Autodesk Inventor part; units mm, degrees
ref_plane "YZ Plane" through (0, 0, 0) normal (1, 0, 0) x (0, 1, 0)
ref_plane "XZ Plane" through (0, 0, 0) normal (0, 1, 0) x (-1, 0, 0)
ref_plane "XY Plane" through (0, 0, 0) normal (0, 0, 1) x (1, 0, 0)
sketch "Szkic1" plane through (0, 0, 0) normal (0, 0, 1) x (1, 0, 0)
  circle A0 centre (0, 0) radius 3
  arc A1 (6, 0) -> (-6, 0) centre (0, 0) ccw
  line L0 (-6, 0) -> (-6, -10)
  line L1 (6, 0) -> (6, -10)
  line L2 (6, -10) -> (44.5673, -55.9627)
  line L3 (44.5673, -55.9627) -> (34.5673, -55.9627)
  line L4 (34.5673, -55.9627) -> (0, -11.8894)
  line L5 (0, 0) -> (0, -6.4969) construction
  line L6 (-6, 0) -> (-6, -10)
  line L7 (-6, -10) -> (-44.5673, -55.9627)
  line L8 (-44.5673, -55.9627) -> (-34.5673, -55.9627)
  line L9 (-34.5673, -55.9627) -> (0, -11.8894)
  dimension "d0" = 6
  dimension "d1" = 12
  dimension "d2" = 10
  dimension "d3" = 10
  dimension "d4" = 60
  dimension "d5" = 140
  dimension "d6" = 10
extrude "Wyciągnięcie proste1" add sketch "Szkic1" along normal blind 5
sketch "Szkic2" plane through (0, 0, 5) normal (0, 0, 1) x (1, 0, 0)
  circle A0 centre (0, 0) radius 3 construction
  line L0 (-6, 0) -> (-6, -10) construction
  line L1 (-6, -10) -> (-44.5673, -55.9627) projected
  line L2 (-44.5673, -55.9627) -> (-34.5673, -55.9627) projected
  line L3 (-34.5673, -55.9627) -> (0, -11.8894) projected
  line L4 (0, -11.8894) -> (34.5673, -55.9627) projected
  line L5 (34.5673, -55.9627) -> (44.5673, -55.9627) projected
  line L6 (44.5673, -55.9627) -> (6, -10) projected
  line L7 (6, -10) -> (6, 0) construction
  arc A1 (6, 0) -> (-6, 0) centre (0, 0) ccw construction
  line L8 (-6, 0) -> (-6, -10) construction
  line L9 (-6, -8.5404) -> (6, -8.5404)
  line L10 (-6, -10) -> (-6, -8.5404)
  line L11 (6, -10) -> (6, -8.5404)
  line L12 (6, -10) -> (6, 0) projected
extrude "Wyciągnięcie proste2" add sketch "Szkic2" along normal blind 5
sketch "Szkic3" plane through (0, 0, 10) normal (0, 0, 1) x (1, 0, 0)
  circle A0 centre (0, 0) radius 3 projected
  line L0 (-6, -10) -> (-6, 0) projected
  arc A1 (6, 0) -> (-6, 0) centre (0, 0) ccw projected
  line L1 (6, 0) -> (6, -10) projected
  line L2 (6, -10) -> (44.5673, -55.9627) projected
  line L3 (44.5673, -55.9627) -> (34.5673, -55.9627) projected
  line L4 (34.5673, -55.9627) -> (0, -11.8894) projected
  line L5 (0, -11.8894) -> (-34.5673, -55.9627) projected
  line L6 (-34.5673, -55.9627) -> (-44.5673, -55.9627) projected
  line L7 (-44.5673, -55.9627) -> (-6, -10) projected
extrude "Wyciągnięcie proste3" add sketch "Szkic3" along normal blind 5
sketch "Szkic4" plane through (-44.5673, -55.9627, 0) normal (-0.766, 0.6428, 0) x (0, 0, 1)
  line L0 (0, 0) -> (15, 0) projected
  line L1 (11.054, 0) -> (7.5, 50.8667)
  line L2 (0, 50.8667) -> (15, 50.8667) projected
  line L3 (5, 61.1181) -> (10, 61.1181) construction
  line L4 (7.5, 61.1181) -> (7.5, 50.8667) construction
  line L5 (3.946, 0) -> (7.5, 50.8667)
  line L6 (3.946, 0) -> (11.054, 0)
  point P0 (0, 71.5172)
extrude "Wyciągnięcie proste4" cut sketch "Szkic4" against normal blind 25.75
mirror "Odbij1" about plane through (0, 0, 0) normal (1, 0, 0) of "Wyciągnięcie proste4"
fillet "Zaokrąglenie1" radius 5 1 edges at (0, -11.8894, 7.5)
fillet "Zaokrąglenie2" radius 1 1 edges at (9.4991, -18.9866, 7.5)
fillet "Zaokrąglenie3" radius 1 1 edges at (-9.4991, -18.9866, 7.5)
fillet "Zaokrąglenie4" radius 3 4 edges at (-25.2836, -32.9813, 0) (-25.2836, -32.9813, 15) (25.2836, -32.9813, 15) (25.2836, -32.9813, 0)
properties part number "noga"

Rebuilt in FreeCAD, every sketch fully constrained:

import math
import FreeCAD as App
import Part
import Sketcher
Q = App.Units.Quantity


def edges_at(feature, points):
    """Names of the edges that pass closest to the given points."""
    edges = feature.Shape.Edges
    near = lambda p: min(range(len(edges)), key=lambda i: edges[i].distToShape(Part.Vertex(*p))[0])
    return sorted({f"Edge{near(p) + 1}" for p in points})


def add_polygon(sketch, points):
    """Adds a closed chain of lines whose ends are joined by coincident constraints."""
    first, n = sketch.GeometryCount, len(points)
    for a, b in zip(points, points[1:] + points[:1]):
        sketch.addGeometry(Part.LineSegment(App.Vector(*a, 0), App.Vector(*b, 0)), False)
    for i in range(n):
        sketch.addConstraint(Sketcher.Constraint("Coincident", first + i, 2, first + (i + 1) % n, 1))

doc = App.newDocument("Part")
body = doc.addObject("PartDesign::Body", "Body")

# Sketch on XY plane
sketch1 = body.newObject("Sketcher::SketchObject", "Sketch")
sketch1.AttachmentSupport = (doc.getObject("XY_Plane"), [""])
sketch1.MapMode = "FlatFace"
sketch1.addGeometry([
    Part.LineSegment(App.Vector(6, -10, 0), App.Vector(6, 0, 0)),  # 0
    Part.ArcOfCircle(Part.Circle(App.Vector(0, 0, 0), App.Vector(0, 0, 1), 6), math.radians(0), math.radians(180)),  # 1
    Part.LineSegment(App.Vector(-6, 0, 0), App.Vector(-6, -10, 0)),  # 2
    Part.LineSegment(App.Vector(-6, -10, 0), App.Vector(-44.6, -56, 0)),  # 3
    Part.LineSegment(App.Vector(-44.6, -56, 0), App.Vector(-34.6, -56, 0)),  # 4
    Part.LineSegment(App.Vector(-34.6, -56, 0), App.Vector(0, -11.9, 0)),  # 5
    Part.LineSegment(App.Vector(0, -11.9, 0), App.Vector(34.6, -56, 0)),  # 6
    Part.LineSegment(App.Vector(34.6, -56, 0), App.Vector(44.6, -56, 0)),  # 7
    Part.LineSegment(App.Vector(44.6, -56, 0), App.Vector(6, -10, 0)),  # 8
    Part.Circle(App.Vector(0, 0, 0), App.Vector(0, 0, 1), 3),  # 9
], False)
sketch1.addConstraint([
    Sketcher.Constraint("Tangent", 0, 2, 1, 1),
    Sketcher.Constraint("Tangent", 1, 2, 2, 1),
    Sketcher.Constraint("Coincident", 2, 2, 3, 1),
    Sketcher.Constraint("Coincident", 3, 2, 4, 1),
    Sketcher.Constraint("Coincident", 4, 2, 5, 1),
    Sketcher.Constraint("Coincident", 5, 2, 6, 1),
    Sketcher.Constraint("Coincident", 6, 2, 7, 1),
    Sketcher.Constraint("Coincident", 7, 2, 8, 1),
    Sketcher.Constraint("Coincident", 8, 2, 0, 1),
    Sketcher.Constraint("Vertical", 0),
    Sketcher.Constraint("Vertical", 2),
    Sketcher.Constraint("Horizontal", 4),
    Sketcher.Constraint("Horizontal", 7),
    Sketcher.Constraint("Coincident", 1, 3, -1, 1),
    Sketcher.Constraint("Coincident", 9, 3, -1, 1),
    Sketcher.Constraint("Symmetric", 4, 2, 6, 2, -2),
    Sketcher.Constraint("PointOnObject", 5, 2, -2),
    Sketcher.Constraint("Horizontal", 2, 2, 8, 2),
    Sketcher.Constraint("Equal", 4, 7),
    Sketcher.Constraint("Equal", 7, 0),
    Sketcher.Constraint("Diameter", 9, 6.0),
    Sketcher.Constraint("Radius", 1, 6.0),
    Sketcher.Constraint("DistanceX", 4, 1, 4, 2, 10.0),
    Sketcher.Constraint("Distance", 3, 60.0),
    Sketcher.Constraint("Angle", 3, Q("-130 deg")),
    Sketcher.Constraint("Distance", 5, 56.012),
])
pad1 = body.newObject("PartDesign::Pad", "Pad")
pad1.Profile = sketch1
pad1.Length = 5

# Sketch on XY plane
sketch2 = body.newObject("Sketcher::SketchObject", "Sketch001")
sketch2.AttachmentSupport = (doc.getObject("XY_Plane"), [""])
sketch2.MapMode = "FlatFace"
sketch2.AttachmentOffset = App.Placement(App.Vector(0, 0, 5), App.Rotation())
add_polygon(sketch2, [(-6, -8.5), (-6, -10), (-44.6, -56), (-34.6, -56), (0, -11.9), (34.6, -56), (44.6, -56), (6, -10), (6, -8.5)])  # lines 0-8
sketch2.addConstraint([
    Sketcher.Constraint("Vertical", 0),
    Sketcher.Constraint("Horizontal", 2),
    Sketcher.Constraint("Horizontal", 5),
    Sketcher.Constraint("Vertical", 7),
    Sketcher.Constraint("Horizontal", 8),
    Sketcher.Constraint("Symmetric", 2, 2, 4, 2, -2),
    Sketcher.Constraint("Symmetric", 0, 2, 6, 2, -2),
    Sketcher.Constraint("PointOnObject", 3, 2, -2),
    Sketcher.Constraint("Equal", 2, 5),
    Sketcher.Constraint("DistanceX", 2, 1, 2, 2, 10.0),
    Sketcher.Constraint("DistanceX", 8, 2, 8, 1, 12.0),
    Sketcher.Constraint("Angle", 1, Q("-130 deg")),
    Sketcher.Constraint("Distance", 1, 60.0),
    Sketcher.Constraint("DistanceY", 0, 2, -1, 1, 10.0),
    Sketcher.Constraint("Distance", 3, 56.012),
    Sketcher.Constraint("DistanceY", 0, 2, 0, 1, 1.4596),
])
pad2 = body.newObject("PartDesign::Pad", "Pad001")
pad2.Profile = sketch2
pad2.Length = 5

# Sketch on XY plane
sketch3 = body.newObject("Sketcher::SketchObject", "Sketch002")
sketch3.AttachmentSupport = (doc.getObject("XY_Plane"), [""])
sketch3.MapMode = "FlatFace"
sketch3.AttachmentOffset = App.Placement(App.Vector(0, 0, 10), App.Rotation())
sketch3.addGeometry([
    Part.LineSegment(App.Vector(-6, 0, 0), App.Vector(-6, -10, 0)),  # 0
    Part.LineSegment(App.Vector(-6, -10, 0), App.Vector(-44.6, -56, 0)),  # 1
    Part.LineSegment(App.Vector(-44.6, -56, 0), App.Vector(-34.6, -56, 0)),  # 2
    Part.LineSegment(App.Vector(-34.6, -56, 0), App.Vector(0, -11.9, 0)),  # 3
    Part.LineSegment(App.Vector(0, -11.9, 0), App.Vector(34.6, -56, 0)),  # 4
    Part.LineSegment(App.Vector(34.6, -56, 0), App.Vector(44.6, -56, 0)),  # 5
    Part.LineSegment(App.Vector(44.6, -56, 0), App.Vector(6, -10, 0)),  # 6
    Part.LineSegment(App.Vector(6, -10, 0), App.Vector(6, 0, 0)),  # 7
    Part.ArcOfCircle(Part.Circle(App.Vector(0, 0, 0), App.Vector(0, 0, 1), 6), math.radians(0), math.radians(180)),  # 8
    Part.Circle(App.Vector(0, 0, 0), App.Vector(0, 0, 1), 3),  # 9
], False)
sketch3.addConstraint([
    Sketcher.Constraint("Coincident", 0, 2, 1, 1),
    Sketcher.Constraint("Coincident", 1, 2, 2, 1),
    Sketcher.Constraint("Coincident", 2, 2, 3, 1),
    Sketcher.Constraint("Coincident", 3, 2, 4, 1),
    Sketcher.Constraint("Coincident", 4, 2, 5, 1),
    Sketcher.Constraint("Coincident", 5, 2, 6, 1),
    Sketcher.Constraint("Coincident", 6, 2, 7, 1),
    Sketcher.Constraint("Tangent", 7, 2, 8, 1),
    Sketcher.Constraint("Tangent", 8, 2, 0, 1),
    Sketcher.Constraint("Vertical", 0),
    Sketcher.Constraint("Horizontal", 2),
    Sketcher.Constraint("Horizontal", 5),
    Sketcher.Constraint("Vertical", 7),
    Sketcher.Constraint("Coincident", 8, 3, -1, 1),
    Sketcher.Constraint("Coincident", 9, 3, -1, 1),
    Sketcher.Constraint("Symmetric", 2, 2, 4, 2, -2),
    Sketcher.Constraint("PointOnObject", 3, 2, -2),
    Sketcher.Constraint("Horizontal", 0, 2, 6, 2),
    Sketcher.Constraint("Equal", 2, 5),
    Sketcher.Constraint("Equal", 5, 0),
    Sketcher.Constraint("Diameter", 9, 6.0),
    Sketcher.Constraint("Radius", 8, 6.0),
    Sketcher.Constraint("DistanceX", 2, 1, 2, 2, 10.0),
    Sketcher.Constraint("Angle", 1, Q("-130 deg")),
    Sketcher.Constraint("Distance", 1, 60.0),
    Sketcher.Constraint("Distance", 3, 56.012),
])
pad3 = body.newObject("PartDesign::Pad", "Pad002")
pad3.Profile = sketch3
pad3.Length = 5

# Sketch on an angled plane
sketch4 = body.newObject("Sketcher::SketchObject", "Sketch003")
sketch4.Placement = App.Placement(App.Vector(-44.5673, -55.9627, 0), App.Rotation(App.Vector(0, 0, 1), App.Vector(0.64278761, 0.766044443, 0), App.Vector(-0.766044443, 0.64278761, 0), "ZXY"))
add_polygon(sketch4, [(8, 51), (4, 0), (11, 0)])  # lines 0-2
sketch4.addConstraint([
    Sketcher.Constraint("Horizontal", 1),
    Sketcher.Constraint("PointOnObject", 0, 2, -1),
    Sketcher.Constraint("Equal", 0, 2),
    Sketcher.Constraint("DistanceX", -1, 1, 2, 2, 7.5),
    Sketcher.Constraint("DistanceX", 1, 1, 1, 2, 7.108),
    Sketcher.Constraint("Distance", 0, 50.9907),
])
pocket1 = body.newObject("PartDesign::Pocket", "Pocket")
pocket1.Profile = sketch4
pocket1.Length = 25.75
doc.recompute()

mirrored = body.newObject("PartDesign::Mirrored", "Mirrored")
mirrored.Originals = [pocket1]
mirrored.MirrorPlane = (doc.getObject("YZ_Plane"), [""])
body.Tip = mirrored
doc.recompute()

fillet = body.newObject("PartDesign::Fillet", "Fillet")
fillet.Base = (mirrored, edges_at(mirrored, [(0, -11.889, 7.5)]))
fillet.Radius = 5
doc.recompute()

fillet2 = body.newObject("PartDesign::Fillet", "Fillet001")
fillet2.Base = (fillet, edges_at(fillet, [(9.499, -18.987, 7.5)]))
fillet2.Radius = 1
doc.recompute()

fillet3 = body.newObject("PartDesign::Fillet", "Fillet002")
fillet3.Base = (fillet2, edges_at(fillet2, [(-9.499, -18.987, 7.5)]))
fillet3.Radius = 1
doc.recompute()

fillet4 = body.newObject("PartDesign::Fillet", "Fillet003")
fillet4.Base = (fillet3, edges_at(fillet3, [
    (-25.284, -32.981, 0),
    (-25.284, -32.981, 15),
    (25.284, -32.981, 15),
    (25.284, -32.981, 0),
]))
fillet4.Radius = 3

doc.recompute()
